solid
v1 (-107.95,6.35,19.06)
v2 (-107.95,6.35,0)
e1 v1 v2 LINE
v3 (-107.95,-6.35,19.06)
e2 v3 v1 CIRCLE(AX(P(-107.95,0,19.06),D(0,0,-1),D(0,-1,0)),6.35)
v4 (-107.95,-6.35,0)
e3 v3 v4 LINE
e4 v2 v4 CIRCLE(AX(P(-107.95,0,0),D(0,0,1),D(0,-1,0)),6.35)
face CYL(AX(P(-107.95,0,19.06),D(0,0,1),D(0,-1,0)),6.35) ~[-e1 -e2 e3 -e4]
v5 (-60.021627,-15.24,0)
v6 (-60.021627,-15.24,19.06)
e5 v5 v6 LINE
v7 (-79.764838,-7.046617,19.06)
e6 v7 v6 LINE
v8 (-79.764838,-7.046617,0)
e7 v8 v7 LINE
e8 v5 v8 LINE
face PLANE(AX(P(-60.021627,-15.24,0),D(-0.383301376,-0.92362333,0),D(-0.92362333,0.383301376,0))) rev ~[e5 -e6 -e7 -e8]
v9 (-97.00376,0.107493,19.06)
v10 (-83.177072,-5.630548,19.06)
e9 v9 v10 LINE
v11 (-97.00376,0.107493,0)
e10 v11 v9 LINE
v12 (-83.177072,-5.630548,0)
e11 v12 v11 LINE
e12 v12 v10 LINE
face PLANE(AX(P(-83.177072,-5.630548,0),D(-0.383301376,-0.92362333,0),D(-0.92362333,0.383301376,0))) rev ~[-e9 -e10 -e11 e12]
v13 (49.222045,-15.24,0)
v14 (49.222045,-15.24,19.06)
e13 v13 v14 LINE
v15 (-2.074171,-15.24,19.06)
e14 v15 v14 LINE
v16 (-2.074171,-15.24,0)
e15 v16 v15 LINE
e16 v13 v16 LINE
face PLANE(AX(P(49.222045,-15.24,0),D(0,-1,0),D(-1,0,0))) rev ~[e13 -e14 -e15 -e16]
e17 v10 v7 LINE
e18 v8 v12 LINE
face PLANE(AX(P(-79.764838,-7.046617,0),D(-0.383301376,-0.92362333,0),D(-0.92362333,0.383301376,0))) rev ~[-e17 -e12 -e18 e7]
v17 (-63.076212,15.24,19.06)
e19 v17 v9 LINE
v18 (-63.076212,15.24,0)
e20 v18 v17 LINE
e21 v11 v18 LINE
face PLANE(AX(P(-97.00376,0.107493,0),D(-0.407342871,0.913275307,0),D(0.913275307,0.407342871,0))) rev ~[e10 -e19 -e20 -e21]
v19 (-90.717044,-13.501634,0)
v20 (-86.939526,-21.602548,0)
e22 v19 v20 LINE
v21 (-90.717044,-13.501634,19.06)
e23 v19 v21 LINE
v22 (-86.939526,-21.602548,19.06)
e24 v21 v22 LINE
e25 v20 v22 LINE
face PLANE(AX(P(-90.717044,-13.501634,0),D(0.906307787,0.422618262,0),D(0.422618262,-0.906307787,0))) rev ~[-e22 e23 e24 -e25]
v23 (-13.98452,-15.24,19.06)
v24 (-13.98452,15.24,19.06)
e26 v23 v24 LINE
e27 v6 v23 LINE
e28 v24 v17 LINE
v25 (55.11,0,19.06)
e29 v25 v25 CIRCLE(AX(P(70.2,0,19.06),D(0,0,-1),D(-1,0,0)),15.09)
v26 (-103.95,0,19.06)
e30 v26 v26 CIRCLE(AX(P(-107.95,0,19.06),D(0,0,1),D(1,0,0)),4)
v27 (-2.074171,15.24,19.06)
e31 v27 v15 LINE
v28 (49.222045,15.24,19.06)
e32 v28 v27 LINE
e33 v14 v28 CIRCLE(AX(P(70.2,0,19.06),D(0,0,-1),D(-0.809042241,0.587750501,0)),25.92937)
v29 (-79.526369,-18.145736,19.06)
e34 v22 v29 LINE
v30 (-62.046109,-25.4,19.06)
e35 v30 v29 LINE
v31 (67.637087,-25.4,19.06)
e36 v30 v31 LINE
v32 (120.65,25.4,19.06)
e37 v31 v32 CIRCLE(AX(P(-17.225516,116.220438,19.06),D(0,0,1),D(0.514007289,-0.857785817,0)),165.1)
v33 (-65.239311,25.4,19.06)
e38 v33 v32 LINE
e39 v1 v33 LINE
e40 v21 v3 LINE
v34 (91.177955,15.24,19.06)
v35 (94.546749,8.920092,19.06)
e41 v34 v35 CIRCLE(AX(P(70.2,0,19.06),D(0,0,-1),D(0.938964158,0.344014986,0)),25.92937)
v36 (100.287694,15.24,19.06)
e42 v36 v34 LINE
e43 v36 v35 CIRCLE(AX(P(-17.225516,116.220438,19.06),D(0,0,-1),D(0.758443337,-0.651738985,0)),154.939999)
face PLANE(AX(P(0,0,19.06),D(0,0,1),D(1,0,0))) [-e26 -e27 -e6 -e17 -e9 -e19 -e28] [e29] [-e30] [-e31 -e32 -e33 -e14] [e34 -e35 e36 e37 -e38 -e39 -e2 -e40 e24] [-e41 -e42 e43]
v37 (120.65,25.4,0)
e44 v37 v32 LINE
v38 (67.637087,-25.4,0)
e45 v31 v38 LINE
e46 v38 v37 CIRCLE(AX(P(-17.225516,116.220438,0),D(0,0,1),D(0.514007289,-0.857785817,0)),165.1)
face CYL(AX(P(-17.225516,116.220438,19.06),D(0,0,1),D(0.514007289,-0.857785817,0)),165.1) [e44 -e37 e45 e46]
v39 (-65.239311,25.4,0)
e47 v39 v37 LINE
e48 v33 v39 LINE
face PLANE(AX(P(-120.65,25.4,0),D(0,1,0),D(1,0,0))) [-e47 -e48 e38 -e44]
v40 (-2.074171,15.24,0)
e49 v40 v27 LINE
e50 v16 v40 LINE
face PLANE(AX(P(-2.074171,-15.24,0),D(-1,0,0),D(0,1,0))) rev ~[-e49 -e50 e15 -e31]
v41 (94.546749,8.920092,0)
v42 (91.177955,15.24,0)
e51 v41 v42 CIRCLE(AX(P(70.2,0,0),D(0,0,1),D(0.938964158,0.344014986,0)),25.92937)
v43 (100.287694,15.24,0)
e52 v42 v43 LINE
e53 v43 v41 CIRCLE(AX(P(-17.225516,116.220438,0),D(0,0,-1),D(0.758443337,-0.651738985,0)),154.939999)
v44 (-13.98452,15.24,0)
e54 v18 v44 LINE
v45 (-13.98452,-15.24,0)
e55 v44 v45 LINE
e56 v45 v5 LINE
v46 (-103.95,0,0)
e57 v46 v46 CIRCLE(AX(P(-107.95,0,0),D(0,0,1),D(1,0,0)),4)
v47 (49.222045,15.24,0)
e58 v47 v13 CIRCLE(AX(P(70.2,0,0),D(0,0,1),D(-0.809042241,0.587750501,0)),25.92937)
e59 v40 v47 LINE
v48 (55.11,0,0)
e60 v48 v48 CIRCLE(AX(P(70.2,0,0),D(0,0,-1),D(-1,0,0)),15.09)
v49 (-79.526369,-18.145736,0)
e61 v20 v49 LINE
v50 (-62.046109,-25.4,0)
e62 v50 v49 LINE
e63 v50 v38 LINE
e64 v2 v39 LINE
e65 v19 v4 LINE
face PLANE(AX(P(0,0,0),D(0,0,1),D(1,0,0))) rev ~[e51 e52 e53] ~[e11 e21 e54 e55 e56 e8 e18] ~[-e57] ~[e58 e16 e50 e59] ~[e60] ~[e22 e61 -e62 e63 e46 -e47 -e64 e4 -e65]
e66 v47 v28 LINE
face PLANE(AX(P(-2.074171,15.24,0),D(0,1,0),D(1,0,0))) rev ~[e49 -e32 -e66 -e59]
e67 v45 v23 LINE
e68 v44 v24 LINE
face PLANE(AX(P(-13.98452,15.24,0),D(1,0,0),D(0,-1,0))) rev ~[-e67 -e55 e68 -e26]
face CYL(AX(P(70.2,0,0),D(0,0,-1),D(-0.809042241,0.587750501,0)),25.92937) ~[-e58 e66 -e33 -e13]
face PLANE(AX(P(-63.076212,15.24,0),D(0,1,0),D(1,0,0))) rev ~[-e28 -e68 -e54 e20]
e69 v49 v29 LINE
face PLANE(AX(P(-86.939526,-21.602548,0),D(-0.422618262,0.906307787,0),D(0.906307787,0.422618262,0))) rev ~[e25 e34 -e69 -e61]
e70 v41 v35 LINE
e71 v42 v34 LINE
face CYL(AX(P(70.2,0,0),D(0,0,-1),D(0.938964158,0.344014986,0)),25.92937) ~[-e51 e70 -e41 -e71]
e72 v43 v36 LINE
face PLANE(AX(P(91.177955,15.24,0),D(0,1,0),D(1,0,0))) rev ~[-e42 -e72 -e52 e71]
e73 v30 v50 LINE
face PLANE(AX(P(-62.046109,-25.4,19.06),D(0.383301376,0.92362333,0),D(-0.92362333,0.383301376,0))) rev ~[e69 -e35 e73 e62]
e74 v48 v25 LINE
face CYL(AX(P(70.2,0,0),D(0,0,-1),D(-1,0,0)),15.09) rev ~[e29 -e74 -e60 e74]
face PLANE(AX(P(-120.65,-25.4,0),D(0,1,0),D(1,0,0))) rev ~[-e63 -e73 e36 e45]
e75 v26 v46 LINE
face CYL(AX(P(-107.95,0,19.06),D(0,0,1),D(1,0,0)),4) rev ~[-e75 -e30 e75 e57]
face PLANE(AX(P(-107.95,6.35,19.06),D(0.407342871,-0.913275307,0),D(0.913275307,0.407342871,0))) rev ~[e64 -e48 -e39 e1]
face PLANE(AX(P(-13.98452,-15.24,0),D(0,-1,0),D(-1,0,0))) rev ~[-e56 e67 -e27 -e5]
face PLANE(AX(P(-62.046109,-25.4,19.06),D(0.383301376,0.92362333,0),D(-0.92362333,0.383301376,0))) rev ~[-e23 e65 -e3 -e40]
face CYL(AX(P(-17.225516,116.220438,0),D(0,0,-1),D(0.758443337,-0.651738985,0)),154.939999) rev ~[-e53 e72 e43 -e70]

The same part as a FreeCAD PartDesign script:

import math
import FreeCAD as App
import Part
import Sketcher
Q = App.Units.Quantity


def add_polygon(sketch, points):
    """Adds a closed chain of lines whose ends are joined by coincident constraints."""
    first, n = sketch.GeometryCount, len(points)
    for a, b in zip(points, points[1:] + points[:1]):
        sketch.addGeometry(Part.LineSegment(App.Vector(*a, 0), App.Vector(*b, 0)), False)
    for i in range(n):
        sketch.addConstraint(Sketcher.Constraint("Coincident", first + i, 2, first + (i + 1) % n, 1))

doc = App.newDocument("Part")
body = doc.addObject("PartDesign::Body", "Body")

# Sketch on XY plane
sketch1 = body.newObject("Sketcher::SketchObject", "Sketch")
sketch1.AttachmentSupport = (doc.getObject("XY_Plane"), [""])
sketch1.MapMode = "FlatFace"
add_polygon(sketch1, [(-121, 25), (-121, -25), (121, -25), (121, 25)])  # lines 0-3
sketch1.addConstraint([
    Sketcher.Constraint("Vertical", 0),
    Sketcher.Constraint("Horizontal", 1),
    Sketcher.Constraint("Vertical", 2),
    Sketcher.Constraint("Horizontal", 3),
    Sketcher.Constraint("Symmetric", 0, 2, 2, 2, -1, 1),
    Sketcher.Constraint("DistanceY", 0, 2, 0, 1, Q("2 in")),
    Sketcher.Constraint("DistanceX", 1, 1, 1, 2, Q("9.5 in")),
])
pad1 = body.newObject("PartDesign::Pad", "Pad")
pad1.Profile = sketch1
pad1.Length = 19.06

# Sketch on XY plane
sketch2 = body.newObject("Sketcher::SketchObject", "Sketch001")
sketch2.AttachmentSupport = (doc.getObject("XY_Plane"), [""])
sketch2.MapMode = "FlatFace"
sketch2.AttachmentOffset = App.Placement(App.Vector(0, 0, 19.06), App.Rotation())
sketch2.addGeometry(Part.Circle(App.Vector(-108, 0, 0), App.Vector(0, 0, 1), 4), False)
sketch2.addConstraint([
    Sketcher.Constraint("PointOnObject", 0, 3, -1),
    Sketcher.Constraint("Diameter", 0, 8.0),
    Sketcher.Constraint("DistanceX", 0, 3, -1, 1, Q("4.25 in")),
])
pocket1 = body.newObject("PartDesign::Pocket", "Pocket")
pocket1.Profile = sketch2
pocket1.Type = "ThroughAll"

# Sketch on XY plane
sketch3 = body.newObject("Sketcher::SketchObject", "Sketch002")
sketch3.AttachmentSupport = (doc.getObject("XY_Plane"), [""])
sketch3.MapMode = "FlatFace"
sketch3.AttachmentOffset = App.Placement(App.Vector(0, 0, 19.06), App.Rotation())
sketch3.addGeometry([
    Part.ArcOfCircle(Part.Circle(App.Vector(-17, 116, 0), App.Vector(0, 0, 1), 165), math.radians(-59), math.radians(-33)),  # 0
    Part.LineSegment(App.Vector(68, -25, 0), App.Vector(121, -25, 0)),  # 1
    Part.LineSegment(App.Vector(121, -25, 0), App.Vector(121, 25, 0)),  # 2
    Part.LineSegment(App.Vector(-62, -25, 0), App.Vector(-108, -6, 0)),  # 3
    Part.ArcOfCircle(Part.Circle(App.Vector(-108, 0, 0), App.Vector(0, 0, 1), 6), math.radians(90), math.radians(270)),  # 4
    Part.LineSegment(App.Vector(-108, 6, 0), App.Vector(-65, 25, 0)),  # 5
    Part.LineSegment(App.Vector(-65, 25, 0), App.Vector(-121, 25, 0)),  # 6
    Part.LineSegment(App.Vector(-121, 25, 0), App.Vector(-121, -25, 0)),  # 7
    Part.LineSegment(App.Vector(-121, -25, 0), App.Vector(-62, -25, 0)),  # 8
], False)
sketch3.addConstraint([
    Sketcher.Constraint("Coincident", 0, 1, 1, 1),
    Sketcher.Constraint("Coincident", 1, 2, 2, 1),
    Sketcher.Constraint("Coincident", 2, 2, 0, 2),
    Sketcher.Constraint("Coincident", 3, 2, 4, 2),
    Sketcher.Constraint("Coincident", 4, 1, 5, 1),
    Sketcher.Constraint("Coincident", 5, 2, 6, 1),
    Sketcher.Constraint("Coincident", 6, 2, 7, 1),
    Sketcher.Constraint("Coincident", 7, 2, 8, 1),
    Sketcher.Constraint("Coincident", 8, 2, 3, 1),
    Sketcher.Constraint("Horizontal", 1),
    Sketcher.Constraint("Vertical", 2),
    Sketcher.Constraint("Horizontal", 6),
    Sketcher.Constraint("Vertical", 7),
    Sketcher.Constraint("Horizontal", 8),
    Sketcher.Constraint("Symmetric", 1, 2, 6, 2, -1, 1),
    Sketcher.Constraint("Symmetric", 3, 2, 4, 1, -1),
    Sketcher.Constraint("Horizontal", 2, 2, 5, 2),
    Sketcher.Constraint("Horizontal", 1, 2, 7, 2),
    Sketcher.Constraint("Vertical", 4, 3, 3, 2),
    Sketcher.Constraint("Radius", 0, Q("6.5 in")),
    Sketcher.Constraint("DistanceY", 2, 1, 2, 2, Q("2 in")),
    Sketcher.Constraint("Radius", 4, Q("0.25 in")),
    Sketcher.Constraint("DistanceX", 4, 3, 1, 2, Q("9 in")),
    Sketcher.Constraint("DistanceX", 6, 2, 4, 1, Q("0.5 in")),
    Sketcher.Constraint("Distance", 5, 46.766499),
    Sketcher.Constraint("DistanceX", 8, 1, 8, 2, 58.603891),
    Sketcher.Constraint("DistanceX", 5, 2, 0, 1, 132.876398),
])
pocket2 = body.newObject("PartDesign::Pocket", "Pocket001")
pocket2.Profile = sketch3
pocket2.Type = "ThroughAll"

# Sketch on XY plane
sketch4 = body.newObject("Sketcher::SketchObject", "Sketch003")
sketch4.AttachmentSupport = (doc.getObject("XY_Plane"), [""])
sketch4.MapMode = "FlatFace"
sketch4.addGeometry(Part.Circle(App.Vector(70, 0, 0), App.Vector(0, 0, 1), 15), False)
sketch4.addConstraint([
    Sketcher.Constraint("PointOnObject", 0, 3, -1),
    Sketcher.Constraint("Diameter", 0, 30.18),
    Sketcher.Constraint("DistanceX", -1, 1, 0, 3, 70.2),
])
pocket3 = body.newObject("PartDesign::Pocket", "Pocket002")
pocket3.Profile = sketch4
pocket3.Type = "ThroughAll"
pocket3.Reversed = True

# Sketch on XY plane
sketch5 = body.newObject("Sketcher::SketchObject", "Sketch004")
sketch5.AttachmentSupport = (doc.getObject("XY_Plane"), [""])
sketch5.MapMode = "FlatFace"
add_polygon(sketch5, [(-80, -18), (-87, -22), (-91, -14)])  # lines 0-2
sketch5.addConstraint([
    Sketcher.Constraint("Perpendicular", 0, 1),
    Sketcher.Constraint("Angle", 0, Q("-155 deg")),
    Sketcher.Constraint("Distance", 1, 8.93837),
    Sketcher.Constraint("Distance", 2, 12.11606),
    Sketcher.Constraint("DistanceY", 0, 2, -1, 1, 21.602548),
    Sketcher.Constraint("DistanceX", 2, 2, -1, 1, 79.526369),
])
pad2 = body.newObject("PartDesign::Pad", "Pad001")
pad2.Profile = sketch5
pad2.Length = 19.06

# Sketch on XY plane
sketch6 = body.newObject("Sketcher::SketchObject", "Sketch005")
sketch6.AttachmentSupport = (doc.getObject("XY_Plane"), [""])
sketch6.MapMode = "FlatFace"
sketch6.addGeometry(Part.LineSegment(App.Vector(91.2, 15.2, 0), App.Vector(100.3, 15.2, 0)), False)  # 0
sketch6.addGeometry(Part.ArcOfCircle(Part.Circle(App.Vector(-17.2, 116.2, 0), App.Vector(0, 0, 1), 154.9), math.radians(-43.83), math.radians(-40.67)), False)  # 1
sketch6.addGeometry(Part.ArcOfCircle(Part.Circle(App.Vector(70.2, 0, 0), App.Vector(0, 0, 1), 25.9), math.radians(20.12), math.radians(36)), False)  # 2
add_polygon(sketch6, [(-14, -15.2), (-60, -15.2), (-79.8, -7), (-83.2, -5.6), (-97, 0.1), (-63.1, 15.2), (-14, 15.2)])  # lines 3-9
sketch6.addGeometry(Part.LineSegment(App.Vector(-2.1, -15.2, 0), App.Vector(-2.1, 15.2, 0)), False)  # 10
sketch6.addGeometry(Part.LineSegment(App.Vector(-2.1, 15.2, 0), App.Vector(49.2, 15.2, 0)), False)  # 11
sketch6.addGeometry(Part.ArcOfCircle(Part.Circle(App.Vector(70.2, 0, 0), App.Vector(0, 0, 1), 25.9), math.radians(144), math.radians(216)), False)  # 12
sketch6.addGeometry(Part.LineSegment(App.Vector(49.2, -15.2, 0), App.Vector(-2.1, -15.2, 0)), False)  # 13
sketch6.addConstraint([
    Sketcher.Constraint("Coincident", 0, 2, 1, 2),
    Sketcher.Constraint("Coincident", 1, 1, 2, 1),
    Sketcher.Constraint("Coincident", 2, 2, 0, 1),
    Sketcher.Constraint("Coincident", 10, 2, 11, 1),
    Sketcher.Constraint("Coincident", 11, 2, 12, 1),
    Sketcher.Constraint("Coincident", 12, 2, 13, 1),
    Sketcher.Constraint("Coincident", 13, 2, 10, 1),
    Sketcher.Constraint("Horizontal", 0),
    Sketcher.Constraint("Horizontal", 3),
    Sketcher.Constraint("Horizontal", 8),
    Sketcher.Constraint("Vertical", 9),
    Sketcher.Constraint("Vertical", 10),
    Sketcher.Constraint("Horizontal", 11),
    Sketcher.Constraint("Horizontal", 13),
    Sketcher.Constraint("Coincident", 12, 3, 2, 3),
    Sketcher.Constraint("Equal", 2, 12),
    Sketcher.Constraint("Symmetric", 11, 2, 12, 2, -1),
    Sketcher.Constraint("Parallel", 4, 5),
    Sketcher.Constraint("Parallel", 5, 6),
    Sketcher.Constraint("Horizontal", 2, 2, 7, 2),
    Sketcher.Constraint("Horizontal", 8, 2, 10, 2),
    Sketcher.Constraint("Horizontal", 9, 2, 12, 2),
    Sketcher.Constraint("Radius", 1, Q("6.1 in")),
    Sketcher.Constraint("DistanceY", 9, 2, 9, 1, Q("1.2 in")),
    Sketcher.Constraint("Radius", 2, 25.92937),
    Sketcher.Constraint("Distance", 5, 3.6944),
    Sketcher.Constraint("DistanceX", 0, 1, 0, 2, 9.109739),
    Sketcher.Constraint("DistanceX", -1, 1, 2, 3, 70.2),
    Sketcher.Constraint("Distance", 6, 14.970051),
    Sketcher.Constraint("Distance", 7, 37.149311),
    Sketcher.Constraint("DistanceX", 3, 2, 3, 1, 46.037107),
    Sketcher.Constraint("DistanceX", 8, 1, 8, 2, 49.091693),
    Sketcher.Constraint("DistanceX", 11, 1, 11, 2, 51.296215),
    Sketcher.Constraint("DistanceX", 4, 2, -1, 1, 79.764838),
    Sketcher.Constraint("DistanceX", 6, 2, -1, 1, 97.00376),
    Sketcher.Constraint("DistanceX", 1, 3, 0, 2, 117.51321),
])
pocket4 = body.newObject("PartDesign::Pocket", "Pocket003")
pocket4.Profile = sketch6
pocket4.Type = "ThroughAll"
pocket4.Reversed = True

doc.recompute()
